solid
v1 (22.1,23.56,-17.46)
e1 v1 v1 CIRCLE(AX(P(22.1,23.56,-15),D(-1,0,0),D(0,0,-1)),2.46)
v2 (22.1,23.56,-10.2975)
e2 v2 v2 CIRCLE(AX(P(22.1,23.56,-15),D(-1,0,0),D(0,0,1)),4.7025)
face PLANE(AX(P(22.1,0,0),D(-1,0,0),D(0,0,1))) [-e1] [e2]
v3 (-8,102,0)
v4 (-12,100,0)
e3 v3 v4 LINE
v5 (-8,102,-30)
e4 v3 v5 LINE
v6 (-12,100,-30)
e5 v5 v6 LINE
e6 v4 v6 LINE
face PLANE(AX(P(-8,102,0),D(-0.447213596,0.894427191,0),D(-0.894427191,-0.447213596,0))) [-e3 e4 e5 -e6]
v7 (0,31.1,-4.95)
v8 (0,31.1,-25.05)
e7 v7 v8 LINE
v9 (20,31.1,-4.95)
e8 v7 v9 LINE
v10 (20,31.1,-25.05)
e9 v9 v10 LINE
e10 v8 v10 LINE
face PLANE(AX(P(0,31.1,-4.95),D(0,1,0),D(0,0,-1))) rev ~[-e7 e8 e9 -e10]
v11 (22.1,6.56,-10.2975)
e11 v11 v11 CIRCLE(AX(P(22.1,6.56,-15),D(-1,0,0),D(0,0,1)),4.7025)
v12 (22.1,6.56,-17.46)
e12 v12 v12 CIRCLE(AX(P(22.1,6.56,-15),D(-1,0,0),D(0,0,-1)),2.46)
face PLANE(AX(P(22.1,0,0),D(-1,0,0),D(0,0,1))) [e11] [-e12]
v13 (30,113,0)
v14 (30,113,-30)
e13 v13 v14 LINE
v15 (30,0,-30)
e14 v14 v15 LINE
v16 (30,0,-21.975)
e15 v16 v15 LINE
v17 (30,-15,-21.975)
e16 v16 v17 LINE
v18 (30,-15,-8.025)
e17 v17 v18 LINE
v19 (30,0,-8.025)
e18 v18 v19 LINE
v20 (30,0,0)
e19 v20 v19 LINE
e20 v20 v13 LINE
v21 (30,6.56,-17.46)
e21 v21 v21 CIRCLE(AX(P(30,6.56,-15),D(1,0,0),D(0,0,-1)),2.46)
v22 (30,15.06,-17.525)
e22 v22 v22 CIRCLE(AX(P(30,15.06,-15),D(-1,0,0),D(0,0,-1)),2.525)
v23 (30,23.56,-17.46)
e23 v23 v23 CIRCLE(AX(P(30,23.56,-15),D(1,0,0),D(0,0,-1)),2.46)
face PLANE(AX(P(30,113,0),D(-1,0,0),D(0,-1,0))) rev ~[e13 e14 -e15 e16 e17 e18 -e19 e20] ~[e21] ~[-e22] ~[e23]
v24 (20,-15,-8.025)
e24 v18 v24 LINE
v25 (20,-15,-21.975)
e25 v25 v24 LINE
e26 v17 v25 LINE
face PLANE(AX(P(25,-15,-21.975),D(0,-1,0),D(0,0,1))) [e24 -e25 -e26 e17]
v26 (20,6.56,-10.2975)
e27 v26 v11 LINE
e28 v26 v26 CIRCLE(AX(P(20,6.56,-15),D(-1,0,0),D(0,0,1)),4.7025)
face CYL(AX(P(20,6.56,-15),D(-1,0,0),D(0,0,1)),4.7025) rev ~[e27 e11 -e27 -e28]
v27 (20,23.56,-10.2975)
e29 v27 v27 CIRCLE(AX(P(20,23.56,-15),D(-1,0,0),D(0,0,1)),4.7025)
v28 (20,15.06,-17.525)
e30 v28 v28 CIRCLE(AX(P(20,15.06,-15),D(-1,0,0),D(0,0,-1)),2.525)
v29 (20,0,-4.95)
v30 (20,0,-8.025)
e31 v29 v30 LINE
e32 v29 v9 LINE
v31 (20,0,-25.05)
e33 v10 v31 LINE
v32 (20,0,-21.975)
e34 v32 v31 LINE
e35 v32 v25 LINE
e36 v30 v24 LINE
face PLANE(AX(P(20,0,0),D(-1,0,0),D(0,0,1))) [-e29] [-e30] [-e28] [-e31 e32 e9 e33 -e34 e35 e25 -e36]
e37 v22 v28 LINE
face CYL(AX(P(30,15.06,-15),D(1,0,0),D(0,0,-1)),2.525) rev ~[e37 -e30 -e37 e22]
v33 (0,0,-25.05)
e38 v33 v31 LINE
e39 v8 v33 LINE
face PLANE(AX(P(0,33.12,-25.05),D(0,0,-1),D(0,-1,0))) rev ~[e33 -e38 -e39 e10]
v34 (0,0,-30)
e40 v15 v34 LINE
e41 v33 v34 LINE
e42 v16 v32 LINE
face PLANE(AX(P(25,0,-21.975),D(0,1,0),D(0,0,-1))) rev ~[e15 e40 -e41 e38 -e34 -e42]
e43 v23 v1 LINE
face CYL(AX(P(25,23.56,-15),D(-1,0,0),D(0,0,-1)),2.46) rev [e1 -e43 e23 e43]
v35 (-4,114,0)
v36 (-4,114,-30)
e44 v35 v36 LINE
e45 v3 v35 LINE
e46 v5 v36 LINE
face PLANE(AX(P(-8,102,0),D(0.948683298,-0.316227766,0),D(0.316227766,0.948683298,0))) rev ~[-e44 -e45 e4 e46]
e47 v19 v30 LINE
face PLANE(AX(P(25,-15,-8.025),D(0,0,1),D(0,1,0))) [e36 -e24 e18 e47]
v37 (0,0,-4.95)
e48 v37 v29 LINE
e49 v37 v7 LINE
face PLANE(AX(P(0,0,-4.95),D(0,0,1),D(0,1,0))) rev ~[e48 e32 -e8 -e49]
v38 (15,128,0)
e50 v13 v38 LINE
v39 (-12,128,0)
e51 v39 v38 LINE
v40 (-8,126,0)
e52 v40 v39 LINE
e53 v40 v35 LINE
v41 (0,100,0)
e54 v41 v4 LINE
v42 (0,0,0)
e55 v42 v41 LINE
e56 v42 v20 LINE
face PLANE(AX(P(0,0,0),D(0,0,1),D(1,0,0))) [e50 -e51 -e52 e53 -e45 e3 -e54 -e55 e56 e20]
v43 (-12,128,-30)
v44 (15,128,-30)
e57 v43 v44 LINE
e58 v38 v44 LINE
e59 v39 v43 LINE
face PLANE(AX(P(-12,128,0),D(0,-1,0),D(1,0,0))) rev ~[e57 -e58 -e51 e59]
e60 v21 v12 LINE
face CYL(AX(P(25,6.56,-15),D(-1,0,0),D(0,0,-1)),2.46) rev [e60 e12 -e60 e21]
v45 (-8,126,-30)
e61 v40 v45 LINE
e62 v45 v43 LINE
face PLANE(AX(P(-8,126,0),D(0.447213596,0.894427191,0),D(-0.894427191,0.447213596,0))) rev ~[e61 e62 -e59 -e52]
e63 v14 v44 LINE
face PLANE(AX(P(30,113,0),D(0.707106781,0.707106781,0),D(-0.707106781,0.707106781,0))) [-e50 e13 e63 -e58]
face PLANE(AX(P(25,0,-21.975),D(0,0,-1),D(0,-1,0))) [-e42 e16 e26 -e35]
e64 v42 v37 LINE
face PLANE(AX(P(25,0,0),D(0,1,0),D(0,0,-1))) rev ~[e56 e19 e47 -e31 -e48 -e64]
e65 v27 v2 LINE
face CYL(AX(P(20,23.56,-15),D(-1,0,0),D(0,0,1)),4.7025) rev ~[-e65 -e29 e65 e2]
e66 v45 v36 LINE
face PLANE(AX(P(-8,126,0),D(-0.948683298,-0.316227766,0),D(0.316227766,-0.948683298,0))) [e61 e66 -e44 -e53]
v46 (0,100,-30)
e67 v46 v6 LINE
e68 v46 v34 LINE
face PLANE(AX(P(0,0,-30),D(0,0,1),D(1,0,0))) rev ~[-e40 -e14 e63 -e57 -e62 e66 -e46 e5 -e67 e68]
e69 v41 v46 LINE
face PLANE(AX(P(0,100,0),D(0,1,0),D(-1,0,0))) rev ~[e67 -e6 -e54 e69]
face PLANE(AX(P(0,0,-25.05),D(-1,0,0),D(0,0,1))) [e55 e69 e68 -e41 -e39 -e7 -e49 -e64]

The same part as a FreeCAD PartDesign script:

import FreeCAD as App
import Part
import Sketcher
from FreeCAD import Vector

doc = App.newDocument("Part")
params = doc.addObject("Spreadsheet::Sheet", "Params")
for row, (alias, value) in enumerate([
    ("sketch1_width", "25 mm"),
    ("sketch1_height", "40 mm"),
    ("pad1_length", "30 mm"),
    ("sketch2_diameter", "4.92 mm"),
    ("pocket1_length", "30 mm"),
    ("sketch3_height", "20.1 mm"),
    ("sketch3_width", "33.12 mm"),
    ("pocket2_length", "20 mm"),
    ("sketch4_height", "13.95 mm"),
    ("sketch4_width", "5 mm"),
    ("pad2_length", "15 mm"),
    ("sketch5_diameter", "4.92 mm"),
    ("pocket3_length", "2.1 mm"),
    ("sketch6_diameter", "4.92 mm"),
    ("pocket4_length", "10 mm"),
    ("sketch7_diameter", "4.92 mm"),
    ("pocket5_length", "2.1 mm"),
    ("sketch8_diameter", "4.92 mm"),
    ("sketch8_width", "40 mm"),
    ("sketch8_width2", "15 mm"),
    ("sketch8_height", "30 mm"),
    ("sketch8_height2", "13.95 mm"),
    ("pad3_length", "5 mm"),
    ("sketch9_width", "30 mm"),
    ("pad4_length", "30 mm"),
    ("sketch10_diameter", "5.05 mm"),
    ("pocket6_length", "30 mm"),
    ("sketch11_width", "12 mm"),
    ("sketch11_width2", "30 mm"),
    ("sketch11_width3", "27 mm"),
    ("sketch11_height", "43 mm"),
    ("pad5_length", "30 mm"),
    ("sketch12_width", "2.02 mm"),
    ("sketch12_height", "20.1 mm"),
    ("pad6_length", "20 mm"),
], start=1):
    params.set(f"A{row}", alias)
    params.set(f"B{row}", "=" + value)
    params.setAlias(f"B{row}", alias)

body = doc.addObject("PartDesign::Body", "Body")

sketch1 = body.newObject("Sketcher::SketchObject", "Sketch")
sketch1.AttachmentSupport = (doc.getObject("XY_Plane"), [""])
sketch1.MapMode = "FlatFace"
sketch1.addGeometry(Part.LineSegment(Vector(0, 40, 0), Vector(0, 0, 0)), False)
sketch1.addGeometry(Part.LineSegment(Vector(0, 0, 0), Vector(25, 0, 0)), False)
sketch1.addGeometry(Part.LineSegment(Vector(25, 0, 0), Vector(25, 40, 0)), False)
sketch1.addGeometry(Part.LineSegment(Vector(25, 40, 0), Vector(0, 40, 0)), False)
sketch1.addConstraint(Sketcher.Constraint("Coincident", 0, 2, 1, 1))
sketch1.addConstraint(Sketcher.Constraint("Coincident", 1, 2, 2, 1))
sketch1.addConstraint(Sketcher.Constraint("Coincident", 2, 2, 3, 1))
sketch1.addConstraint(Sketcher.Constraint("Coincident", 3, 2, 0, 1))
sketch1.addConstraint(Sketcher.Constraint("Vertical", 0))
sketch1.addConstraint(Sketcher.Constraint("Horizontal", 1))
sketch1.addConstraint(Sketcher.Constraint("Vertical", 2))
sketch1.addConstraint(Sketcher.Constraint("Horizontal", 3))
sketch1.addConstraint(Sketcher.Constraint("Coincident", 0, 2, -1, 1))
sketch1.addConstraint(Sketcher.Constraint("DistanceX", 1, 1, 1, 2, 25.0))
sketch1.addConstraint(Sketcher.Constraint("DistanceY", 0, 2, 0, 1, 40.0))
sketch1.setExpression("Constraints[9]", "Params.sketch1_width")
sketch1.setExpression("Constraints[10]", "Params.sketch1_height")
pad1 = body.newObject("PartDesign::Pad", "Pad")
pad1.Profile = sketch1
pad1.setExpression("Length", "Params.pad1_length")
pad1.Reversed = True

sketch2 = body.newObject("Sketcher::SketchObject", "Sketch001")
sketch2.AttachmentSupport = (doc.getObject("YZ_Plane"), [""])
sketch2.MapMode = "FlatFace"
sketch2.AttachmentOffset = App.Placement(Vector(0, 0, 25), App.Rotation())
sketch2.addGeometry(Part.Circle(Vector(6.6, -15, 0), Vector(0, 0, 1), 2.5), False)
sketch2.addConstraint(Sketcher.Constraint("Diameter", 0, 4.92))
sketch2.addConstraint(Sketcher.Constraint("DistanceY", 0, 3, -1, 1, 15.0))
sketch2.addConstraint(Sketcher.Constraint("DistanceX", -1, 1, 0, 3, 6.56))
sketch2.setExpression("Constraints[0]", "Params.sketch2_diameter")
pocket1 = body.newObject("PartDesign::Pocket", "Pocket")
pocket1.Profile = sketch2
pocket1.setExpression("Length", "Params.pocket1_length")

sketch3 = body.newObject("Sketcher::SketchObject", "Sketch002")
sketch3.AttachmentSupport = (doc.getObject("YZ_Plane"), [""])
sketch3.MapMode = "FlatFace"
sketch3.addGeometry(Part.LineSegment(Vector(0, -25, 0), Vector(0, -5, 0)), False)
sketch3.addGeometry(Part.LineSegment(Vector(0, -5, 0), Vector(33, -5, 0)), False)
sketch3.addGeometry(Part.LineSegment(Vector(33, -5, 0), Vector(33, -25, 0)), False)
sketch3.addGeometry(Part.LineSegment(Vector(33, -25, 0), Vector(0, -25, 0)), False)
sketch3.addConstraint(Sketcher.Constraint("Coincident", 0, 2, 1, 1))
sketch3.addConstraint(Sketcher.Constraint("Coincident", 1, 2, 2, 1))
sketch3.addConstraint(Sketcher.Constraint("Coincident", 2, 2, 3, 1))
sketch3.addConstraint(Sketcher.Constraint("Coincident", 3, 2, 0, 1))
sketch3.addConstraint(Sketcher.Constraint("Vertical", 0))
sketch3.addConstraint(Sketcher.Constraint("Horizontal", 1))
sketch3.addConstraint(Sketcher.Constraint("Vertical", 2))
sketch3.addConstraint(Sketcher.Constraint("Horizontal", 3))
sketch3.addConstraint(Sketcher.Constraint("PointOnObject", 0, 2, -2))
sketch3.addConstraint(Sketcher.Constraint("DistanceY", 0, 1, 0, 2, 20.1))
sketch3.addConstraint(Sketcher.Constraint("DistanceX", 1, 1, 1, 2, 33.12))
sketch3.addConstraint(Sketcher.Constraint("DistanceY", 0, 2, -1, 1, 4.95))
sketch3.setExpression("Constraints[9]", "Params.sketch3_height")
sketch3.setExpression("Constraints[10]", "Params.sketch3_width")
pocket2 = body.newObject("PartDesign::Pocket", "Pocket001")
pocket2.Profile = sketch3
pocket2.setExpression("Length", "Params.pocket2_length")
pocket2.Reversed = True

sketch4 = body.newObject("Sketcher::SketchObject", "Sketch003")
sketch4.AttachmentSupport = (doc.getObject("XZ_Plane"), [""])
sketch4.MapMode = "FlatFace"
sketch4.addGeometry(Part.LineSegment(Vector(25, -8, 0), Vector(20, -8, 0)), False)
sketch4.addGeometry(Part.LineSegment(Vector(20, -8, 0), Vector(20, -22, 0)), False)
sketch4.addGeometry(Part.LineSegment(Vector(20, -22, 0), Vector(25, -22, 0)), False)
sketch4.addGeometry(Part.LineSegment(Vector(25, -22, 0), Vector(25, -8, 0)), False)
sketch4.addConstraint(Sketcher.Constraint("Coincident", 0, 2, 1, 1))
sketch4.addConstraint(Sketcher.Constraint("Coincident", 1, 2, 2, 1))
sketch4.addConstraint(Sketcher.Constraint("Coincident", 2, 2, 3, 1))
sketch4.addConstraint(Sketcher.Constraint("Coincident", 3, 2, 0, 1))
sketch4.addConstraint(Sketcher.Constraint("Horizontal", 0))
sketch4.addConstraint(Sketcher.Constraint("Vertical", 1))
sketch4.addConstraint(Sketcher.Constraint("Horizontal", 2))
sketch4.addConstraint(Sketcher.Constraint("Vertical", 3))
sketch4.addConstraint(Sketcher.Constraint("DistanceY", 1, 2, 1, 1, 13.95))
sketch4.addConstraint(Sketcher.Constraint("DistanceX", 0, 2, 0, 1, 5.0))
sketch4.addConstraint(Sketcher.Constraint("DistanceX", -1, 1, 0, 2, 20.0))
sketch4.addConstraint(Sketcher.Constraint("DistanceY", 0, 2, -1, 1, 8.025))
sketch4.setExpression("Constraints[8]", "Params.sketch4_height")
sketch4.setExpression("Constraints[9]", "Params.sketch4_width")
pad2 = body.newObject("PartDesign::Pad", "Pad001")
pad2.Profile = sketch4
pad2.setExpression("Length", "Params.pad2_length")

sketch5 = body.newObject("Sketcher::SketchObject", "Sketch004")
sketch5.AttachmentSupport = (doc.getObject("YZ_Plane"), [""])
sketch5.MapMode = "FlatFace"
sketch5.AttachmentOffset = App.Placement(Vector(0, 0, 20), App.Rotation())
sketch5.addGeometry(Part.Circle(Vector(6.6, -15, 0), Vector(0, 0, 1), 4.7), False)
sketch5.addGeometry(Part.Circle(Vector(6.6, -15, 0), Vector(0, 0, 1), 2.5), False)
sketch5.addConstraint(Sketcher.Constraint("Coincident", 1, 3, 0, 3))
sketch5.addConstraint(Sketcher.Constraint("Diameter", 0, 9.405))
sketch5.addConstraint(Sketcher.Constraint("Diameter", 1, 4.92))
sketch5.addConstraint(Sketcher.Constraint("DistanceY", 0, 3, -1, 1, 15.0))
sketch5.addConstraint(Sketcher.Constraint("DistanceX", -1, 1, 0, 3, 6.56))
sketch5.setExpression("Constraints[2]", "Params.sketch5_diameter")
pocket3 = body.newObject("PartDesign::Pocket", "Pocket002")
pocket3.Profile = sketch5
pocket3.setExpression("Length", "Params.pocket3_length")
pocket3.Reversed = True

sketch6 = body.newObject("Sketcher::SketchObject", "Sketch005")
sketch6.AttachmentSupport = (doc.getObject("YZ_Plane"), [""])
sketch6.MapMode = "FlatFace"
sketch6.AttachmentOffset = App.Placement(Vector(0, 0, 25), App.Rotation())
sketch6.addGeometry(Part.Circle(Vector(23.6, -15, 0), Vector(0, 0, 1), 2.5), False)
sketch6.addConstraint(Sketcher.Constraint("Diameter", 0, 4.92))
sketch6.addConstraint(Sketcher.Constraint("DistanceY", 0, 3, -1, 1, 15.0))
sketch6.addConstraint(Sketcher.Constraint("DistanceX", -1, 1, 0, 3, 23.56))
sketch6.setExpression("Constraints[0]", "Params.sketch6_diameter")
pocket4 = body.newObject("PartDesign::Pocket", "Pocket003")
pocket4.Profile = sketch6
pocket4.setExpression("Length", "Params.pocket4_length")

sketch7 = body.newObject("Sketcher::SketchObject", "Sketch006")
sketch7.AttachmentSupport = (doc.getObject("YZ_Plane"), [""])
sketch7.MapMode = "FlatFace"
sketch7.AttachmentOffset = App.Placement(Vector(0, 0, 20), App.Rotation())
sketch7.addGeometry(Part.Circle(Vector(23.6, -15, 0), Vector(0, 0, 1), 4.7), False)
sketch7.addGeometry(Part.Circle(Vector(23.6, -15, 0), Vector(0, 0, 1), 2.5), False)
sketch7.addConstraint(Sketcher.Constraint("Coincident", 1, 3, 0, 3))
sketch7.addConstraint(Sketcher.Constraint("Diameter", 0, 9.405))
sketch7.addConstraint(Sketcher.Constraint("Diameter", 1, 4.92))
sketch7.addConstraint(Sketcher.Constraint("DistanceY", 0, 3, -1, 1, 15.0))
sketch7.addConstraint(Sketcher.Constraint("DistanceX", -1, 1, 0, 3, 23.56))
sketch7.setExpression("Constraints[2]", "Params.sketch7_diameter")
pocket5 = body.newObject("PartDesign::Pocket", "Pocket004")
pocket5.Profile = sketch7
pocket5.setExpression("Length", "Params.pocket5_length")
pocket5.Reversed = True

sketch8 = body.newObject("Sketcher::SketchObject", "Sketch007")
sketch8.AttachmentSupport = (doc.getObject("YZ_Plane"), [""])
sketch8.MapMode = "FlatFace"
sketch8.AttachmentOffset = App.Placement(Vector(0, 0, 25), App.Rotation())
sketch8.addGeometry(Part.LineSegment(Vector(0, -30, 0), Vector(40, -30, 0)), False)
sketch8.addGeometry(Part.LineSegment(Vector(40, -30, 0), Vector(40, 0, 0)), False)
sketch8.addGeometry(Part.LineSegment(Vector(40, 0, 0), Vector(0, 0, 0)), False)
sketch8.addGeometry(Part.LineSegment(Vector(0, 0, 0), Vector(0, -8, 0)), False)
sketch8.addGeometry(Part.LineSegment(Vector(0, -8, 0), Vector(-15, -8, 0)), False)
sketch8.addGeometry(Part.LineSegment(Vector(-15, -8, 0), Vector(-15, -22, 0)), False)
sketch8.addGeometry(Part.LineSegment(Vector(-15, -22, 0), Vector(0, -22, 0)), False)
sketch8.addGeometry(Part.LineSegment(Vector(0, -22, 0), Vector(0, -30, 0)), False)
sketch8.addGeometry(Part.Circle(Vector(6.6, -15, 0), Vector(0, 0, 1), 2.5), False)
sketch8.addGeometry(Part.Circle(Vector(23.6, -15, 0), Vector(0, 0, 1), 2.5), False)
sketch8.addConstraint(Sketcher.Constraint("Coincident", 0, 2, 1, 1))
sketch8.addConstraint(Sketcher.Constraint("Coincident", 1, 2, 2, 1))
sketch8.addConstraint(Sketcher.Constraint("Coincident", 2, 2, 3, 1))
sketch8.addConstraint(Sketcher.Constraint("Coincident", 3, 2, 4, 1))
sketch8.addConstraint(Sketcher.Constraint("Coincident", 4, 2, 5, 1))
sketch8.addConstraint(Sketcher.Constraint("Coincident", 5, 2, 6, 1))
sketch8.addConstraint(Sketcher.Constraint("Coincident", 6, 2, 7, 1))
sketch8.addConstraint(Sketcher.Constraint("Coincident", 7, 2, 0, 1))
sketch8.addConstraint(Sketcher.Constraint("Horizontal", 0))
sketch8.addConstraint(Sketcher.Constraint("Vertical", 1))
sketch8.addConstraint(Sketcher.Constraint("Horizontal", 2))
sketch8.addConstraint(Sketcher.Constraint("Vertical", 3))
sketch8.addConstraint(Sketcher.Constraint("Horizontal", 4))
sketch8.addConstraint(Sketcher.Constraint("Vertical", 5))
sketch8.addConstraint(Sketcher.Constraint("Horizontal", 6))
sketch8.addConstraint(Sketcher.Constraint("Vertical", 7))
sketch8.addConstraint(Sketcher.Constraint("Coincident", 2, 2, -1, 1))
sketch8.addConstraint(Sketcher.Constraint("Equal", 8, 9))
sketch8.addConstraint(Sketcher.Constraint("PointOnObject", 6, 2, -2))
sketch8.addConstraint(Sketcher.Constraint("Horizontal", 8, 3, 9, 3))
sketch8.addConstraint(Sketcher.Constraint("Equal", 3, 7))
sketch8.addConstraint(Sketcher.Constraint("Diameter", 8, 4.92))
sketch8.addConstraint(Sketcher.Constraint("DistanceX", 0, 1, 0, 2, 40.0))
sketch8.addConstraint(Sketcher.Constraint("DistanceX", 4, 2, 4, 1, 15.0))
sketch8.addConstraint(Sketcher.Constraint("DistanceY", 1, 1, 1, 2, 30.0))
sketch8.addConstraint(Sketcher.Constraint("DistanceY", 8, 3, -1, 1, 15.0))
sketch8.addConstraint(Sketcher.Constraint("DistanceX", 8, 3, 9, 3, 17.0))
sketch8.addConstraint(Sketcher.Constraint("DistanceY", 5, 2, 5, 1, 13.95))
sketch8.addConstraint(Sketcher.Constraint("DistanceX", -1, 1, 8, 3, 6.56))
sketch8.setExpression("Constraints[21]", "Params.sketch8_diameter")
sketch8.setExpression("Constraints[22]", "Params.sketch8_width")
sketch8.setExpression("Constraints[23]", "Params.sketch8_width2")
sketch8.setExpression("Constraints[24]", "Params.sketch8_height")
sketch8.setExpression("Constraints[27]", "Params.sketch8_height2")
pad3 = body.newObject("PartDesign::Pad", "Pad002")
pad3.Profile = sketch8
pad3.setExpression("Length", "Params.pad3_length")

sketch9 = body.newObject("Sketcher::SketchObject", "Sketch008")
sketch9.AttachmentSupport = (doc.getObject("XZ_Plane"), [""])
sketch9.MapMode = "FlatFace"
sketch9.AttachmentOffset = App.Placement(Vector(0, 0, -40), App.Rotation())
sketch9.addGeometry(Part.LineSegment(Vector(30, -30, 0), Vector(0, -30, 0)), False)
sketch9.addGeometry(Part.LineSegment(Vector(0, -30, 0), Vector(0, 0, 0)), False)
sketch9.addGeometry(Part.LineSegment(Vector(0, 0, 0), Vector(30, 0, 0)), False)
sketch9.addGeometry(Part.LineSegment(Vector(30, 0, 0), Vector(30, -30, 0)), False)
sketch9.addConstraint(Sketcher.Constraint("Coincident", 0, 2, 1, 1))
sketch9.addConstraint(Sketcher.Constraint("Coincident", 1, 2, 2, 1))
sketch9.addConstraint(Sketcher.Constraint("Coincident", 2, 2, 3, 1))
sketch9.addConstraint(Sketcher.Constraint("Coincident", 3, 2, 0, 1))
sketch9.addConstraint(Sketcher.Constraint("Horizontal", 0))
sketch9.addConstraint(Sketcher.Constraint("Vertical", 1))
sketch9.addConstraint(Sketcher.Constraint("Horizontal", 2))
sketch9.addConstraint(Sketcher.Constraint("Vertical", 3))
sketch9.addConstraint(Sketcher.Constraint("Coincident", 1, 2, -1, 1))
sketch9.addConstraint(Sketcher.Constraint("Equal", 2, 1))
sketch9.addConstraint(Sketcher.Constraint("DistanceX", 0, 2, 0, 1, 30.0))
sketch9.setExpression("Constraints[10]", "Params.sketch9_width")
pad4 = body.newObject("PartDesign::Pad", "Pad003")
pad4.Profile = sketch9
pad4.setExpression("Length", "Params.pad4_length")
pad4.Reversed = True

sketch10 = body.newObject("Sketcher::SketchObject", "Sketch009")
sketch10.AttachmentSupport = (doc.getObject("YZ_Plane"), [""])
sketch10.MapMode = "FlatFace"
sketch10.AttachmentOffset = App.Placement(Vector(0, 0, 30), App.Rotation())
sketch10.addGeometry(Part.Circle(Vector(15.1, -15, 0), Vector(0, 0, 1), 2.5), False)
sketch10.addConstraint(Sketcher.Constraint("Diameter", 0, 5.05))
sketch10.addConstraint(Sketcher.Constraint("DistanceY", 0, 3, -1, 1, 15.0))
sketch10.addConstraint(Sketcher.Constraint("DistanceX", -1, 1, 0, 3, 15.06))
sketch10.setExpression("Constraints[0]", "Params.sketch10_diameter")
pocket6 = body.newObject("PartDesign::Pocket", "Pocket005")
pocket6.Profile = sketch10
pocket6.setExpression("Length", "Params.pocket6_length")

sketch11 = body.newObject("Sketcher::SketchObject", "Sketch010")
sketch11.AttachmentSupport = (doc.getObject("XY_Plane"), [""])
sketch11.MapMode = "FlatFace"
sketch11.addGeometry(Part.LineSegment(Vector(0, 70, 0), Vector(30, 70, 0)), False)
sketch11.addGeometry(Part.LineSegment(Vector(30, 70, 0), Vector(30, 113, 0)), False)
sketch11.addGeometry(Part.LineSegment(Vector(30, 113, 0), Vector(15, 128, 0)), False)
sketch11.addGeometry(Part.LineSegment(Vector(15, 128, 0), Vector(-12, 128, 0)), False)
sketch11.addGeometry(Part.LineSegment(Vector(-12, 128, 0), Vector(-8, 126, 0)), False)
sketch11.addGeometry(Part.LineSegment(Vector(-8, 126, 0), Vector(-4, 114, 0)), False)
sketch11.addGeometry(Part.LineSegment(Vector(-4, 114, 0), Vector(-8, 102, 0)), False)
sketch11.addGeometry(Part.LineSegment(Vector(-8, 102, 0), Vector(-12, 100, 0)), False)
sketch11.addGeometry(Part.LineSegment(Vector(-12, 100, 0), Vector(0, 100, 0)), False)
sketch11.addGeometry(Part.LineSegment(Vector(0, 100, 0), Vector(0, 70, 0)), False)
sketch11.addConstraint(Sketcher.Constraint("Coincident", 0, 2, 1, 1))
sketch11.addConstraint(Sketcher.Constraint("Coincident", 1, 2, 2, 1))
sketch11.addConstraint(Sketcher.Constraint("Coincident", 2, 2, 3, 1))
sketch11.addConstraint(Sketcher.Constraint("Coincident", 3, 2, 4, 1))
sketch11.addConstraint(Sketcher.Constraint("Coincident", 4, 2, 5, 1))
sketch11.addConstraint(Sketcher.Constraint("Coincident", 5, 2, 6, 1))
sketch11.addConstraint(Sketcher.Constraint("Coincident", 6, 2, 7, 1))
sketch11.addConstraint(Sketcher.Constraint("Coincident", 7, 2, 8, 1))
sketch11.addConstraint(Sketcher.Constraint("Coincident", 8, 2, 9, 1))
sketch11.addConstraint(Sketcher.Constraint("Coincident", 9, 2, 0, 1))
sketch11.addConstraint(Sketcher.Constraint("Horizontal", 0))
sketch11.addConstraint(Sketcher.Constraint("Vertical", 1))
sketch11.addConstraint(Sketcher.Constraint("Horizontal", 3))
sketch11.addConstraint(Sketcher.Constraint("Horizontal", 8))
sketch11.addConstraint(Sketcher.Constraint("Vertical", 9))
sketch11.addConstraint(Sketcher.Constraint("PointOnObject", 8, 2, -2))
sketch11.addConstraint(Sketcher.Constraint("Vertical", 4, 2, 6, 2))
sketch11.addConstraint(Sketcher.Constraint("Vertical", 3, 2, 7, 2))
sketch11.addConstraint(Sketcher.Constraint("Equal", 0, 9))
sketch11.addConstraint(Sketcher.Constraint("Equal", 5, 6))
sketch11.addConstraint(Sketcher.Constraint("Equal", 4, 7))
sketch11.addConstraint(Sketcher.Constraint("DistanceX", 8, 1, 8, 2, 12.0))
sketch11.addConstraint(Sketcher.Constraint("DistanceY", 5, 2, 4, 2, 12.0))
sketch11.addConstraint(Sketcher.Constraint("DistanceY", 7, 2, 3, 2, 28.0))
sketch11.addConstraint(Sketcher.Constraint("DistanceX", 0, 1, 0, 2, 30.0))
sketch11.addConstraint(Sketcher.Constraint("DistanceX", 3, 2, 3, 1, 27.0))
sketch11.addConstraint(Sketcher.Constraint("DistanceY", 1, 1, 1, 2, 43.0))
sketch11.addConstraint(Sketcher.Constraint("DistanceY", -1, 1, 0, 2, 70.0))
sketch11.addConstraint(Sketcher.Constraint("DistanceX", 4, 2, -1, 1, 8.0))
sketch11.addConstraint(Sketcher.Constraint("DistanceX", 5, 2, -1, 1, 4.0))
sketch11.setExpression("Constraints[21]", "Params.sketch11_width")
sketch11.setExpression("Constraints[24]", "Params.sketch11_width2")
sketch11.setExpression("Constraints[25]", "Params.sketch11_width3")
sketch11.setExpression("Constraints[26]", "Params.sketch11_height")
pad5 = body.newObject("PartDesign::Pad", "Pad004")
pad5.Profile = sketch11
pad5.setExpression("Length", "Params.pad5_length")
pad5.Reversed = True

sketch12 = body.newObject("Sketcher::SketchObject", "Sketch011")
sketch12.AttachmentSupport = (doc.getObject("YZ_Plane"), [""])
sketch12.MapMode = "FlatFace"
sketch12.addGeometry(Part.LineSegment(Vector(33.1, -5, 0), Vector(33.1, -25.1, 0)), False)
sketch12.addGeometry(Part.LineSegment(Vector(33.1, -25.1, 0), Vector(31.1, -25.1, 0)), False)
sketch12.addGeometry(Part.LineSegment(Vector(31.1, -25.1, 0), Vector(31.1, -5, 0)), False)
sketch12.addGeometry(Part.LineSegment(Vector(31.1, -5, 0), Vector(33.1, -5, 0)), False)
sketch12.addConstraint(Sketcher.Constraint("Coincident", 0, 2, 1, 1))
sketch12.addConstraint(Sketcher.Constraint("Coincident", 1, 2, 2, 1))
sketch12.addConstraint(Sketcher.Constraint("Coincident", 2, 2, 3, 1))
sketch12.addConstraint(Sketcher.Constraint("Coincident", 3, 2, 0, 1))
sketch12.addConstraint(Sketcher.Constraint("Vertical", 0))
sketch12.addConstraint(Sketcher.Constraint("Horizontal", 1))
sketch12.addConstraint(Sketcher.Constraint("Vertical", 2))
sketch12.addConstraint(Sketcher.Constraint("Horizontal", 3))
sketch12.addConstraint(Sketcher.Constraint("DistanceX", 1, 2, 1, 1, 2.02))
sketch12.addConstraint(Sketcher.Constraint("DistanceY", 0, 2, 0, 1, 20.1))
sketch12.addConstraint(Sketcher.Constraint("DistanceX", -1, 1, 1, 2, 31.1))
sketch12.addConstraint(Sketcher.Constraint("DistanceY", 0, 2, -1, 1, 25.05))
sketch12.setExpression("Constraints[8]", "Params.sketch12_width")
sketch12.setExpression("Constraints[9]", "Params.sketch12_height")
pad6 = body.newObject("PartDesign::Pad", "Pad005")
pad6.Profile = sketch12
pad6.setExpression("Length", "Params.pad6_length")

doc.recompute()
